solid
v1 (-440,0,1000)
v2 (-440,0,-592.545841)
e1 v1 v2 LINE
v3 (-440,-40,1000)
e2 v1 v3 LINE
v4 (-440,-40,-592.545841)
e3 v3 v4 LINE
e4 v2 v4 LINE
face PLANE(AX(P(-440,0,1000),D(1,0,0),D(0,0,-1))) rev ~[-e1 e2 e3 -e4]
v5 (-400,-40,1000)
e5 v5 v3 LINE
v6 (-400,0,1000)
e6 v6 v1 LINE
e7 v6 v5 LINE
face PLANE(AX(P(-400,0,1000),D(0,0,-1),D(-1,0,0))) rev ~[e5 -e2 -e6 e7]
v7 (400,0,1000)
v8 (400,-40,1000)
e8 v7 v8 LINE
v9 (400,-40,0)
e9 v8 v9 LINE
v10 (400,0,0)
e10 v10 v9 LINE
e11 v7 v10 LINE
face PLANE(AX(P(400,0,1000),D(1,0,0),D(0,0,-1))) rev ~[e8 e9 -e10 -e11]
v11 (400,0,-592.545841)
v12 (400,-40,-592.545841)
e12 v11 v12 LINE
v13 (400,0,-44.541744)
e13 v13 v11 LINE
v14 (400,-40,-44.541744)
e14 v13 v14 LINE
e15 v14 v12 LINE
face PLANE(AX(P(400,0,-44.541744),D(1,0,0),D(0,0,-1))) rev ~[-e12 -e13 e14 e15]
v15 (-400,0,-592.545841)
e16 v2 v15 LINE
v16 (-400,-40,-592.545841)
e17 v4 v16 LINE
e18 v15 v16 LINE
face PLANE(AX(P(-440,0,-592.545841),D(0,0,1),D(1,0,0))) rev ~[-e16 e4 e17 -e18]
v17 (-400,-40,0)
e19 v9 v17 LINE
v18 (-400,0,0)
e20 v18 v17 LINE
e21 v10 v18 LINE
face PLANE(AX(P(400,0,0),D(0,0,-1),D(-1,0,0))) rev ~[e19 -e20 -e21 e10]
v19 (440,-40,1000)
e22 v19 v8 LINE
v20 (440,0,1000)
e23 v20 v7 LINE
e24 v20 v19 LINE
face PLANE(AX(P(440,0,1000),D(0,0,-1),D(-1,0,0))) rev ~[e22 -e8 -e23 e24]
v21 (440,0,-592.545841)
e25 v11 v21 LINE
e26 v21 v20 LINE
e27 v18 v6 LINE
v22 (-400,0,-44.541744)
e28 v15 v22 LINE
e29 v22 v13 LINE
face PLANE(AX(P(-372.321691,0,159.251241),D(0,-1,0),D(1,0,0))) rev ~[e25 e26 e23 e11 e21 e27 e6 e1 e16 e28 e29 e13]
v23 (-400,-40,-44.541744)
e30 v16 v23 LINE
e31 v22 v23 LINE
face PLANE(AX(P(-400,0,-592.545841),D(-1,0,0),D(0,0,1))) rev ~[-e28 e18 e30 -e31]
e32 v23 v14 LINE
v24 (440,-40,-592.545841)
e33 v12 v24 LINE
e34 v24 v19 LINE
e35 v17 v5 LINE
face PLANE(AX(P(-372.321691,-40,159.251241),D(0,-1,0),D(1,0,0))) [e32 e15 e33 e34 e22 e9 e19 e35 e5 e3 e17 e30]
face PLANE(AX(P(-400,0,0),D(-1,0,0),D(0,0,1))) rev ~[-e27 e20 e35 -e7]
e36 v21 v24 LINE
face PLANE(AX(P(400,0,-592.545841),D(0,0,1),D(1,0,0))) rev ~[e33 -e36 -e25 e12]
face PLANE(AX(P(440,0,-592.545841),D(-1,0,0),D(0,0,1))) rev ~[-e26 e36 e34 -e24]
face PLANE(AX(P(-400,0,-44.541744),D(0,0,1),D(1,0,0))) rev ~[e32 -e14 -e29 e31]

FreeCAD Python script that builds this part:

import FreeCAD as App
import Part
import Sketcher
from FreeCAD import Vector
Q = App.Units.Quantity

doc = App.newDocument("Part")
params = doc.addObject("Spreadsheet::Sheet", "Params")
for row, (alias, value) in enumerate([
    ("sketch1_width", "40 mm"),
    ("sketch1_width2", "800 mm"),
    ("sketch1_height", "1000 mm"),
    ("pad1_length", "40 mm"),
], start=1):
    params.set(f"A{row}", alias)
    params.set(f"B{row}", "=" + value)
    params.setAlias(f"B{row}", alias)

body = doc.addObject("PartDesign::Body", "Body")

# Sketch on XZ plane
sketch1 = body.newObject("Sketcher::SketchObject", "Sketch")
sketch1.AttachmentSupport = (doc.getObject("XZ_Plane"), [""])
sketch1.MapMode = "FlatFace"
sketch1.addGeometry(Part.LineSegment(Vector(-400, 0, 0), Vector(-400, 1000, 0)), False)
sketch1.addGeometry(Part.LineSegment(Vector(-400, 1000, 0), Vector(-440, 1000, 0)), False)
sketch1.addGeometry(Part.LineSegment(Vector(-440, 1000, 0), Vector(-440, -592.545841, 0)), False)
sketch1.addGeometry(Part.LineSegment(Vector(-440, -592.545841, 0), Vector(-400, -592.545841, 0)), False)
sketch1.addGeometry(Part.LineSegment(Vector(-400, -592.545841, 0), Vector(-400, -44.541744, 0)), False)
sketch1.addGeometry(Part.LineSegment(Vector(-400, -44.541744, 0), Vector(400, -44.541744, 0)), False)
sketch1.addGeometry(Part.LineSegment(Vector(400, -44.541744, 0), Vector(400, -592.545841, 0)), False)
sketch1.addGeometry(Part.LineSegment(Vector(400, -592.545841, 0), Vector(440, -592.545841, 0)), False)
sketch1.addGeometry(Part.LineSegment(Vector(440, -592.545841, 0), Vector(440, 1000, 0)), False)
sketch1.addGeometry(Part.LineSegment(Vector(440, 1000, 0), Vector(400, 1000, 0)), False)
sketch1.addGeometry(Part.LineSegment(Vector(400, 1000, 0), Vector(400, 0, 0)), False)
sketch1.addGeometry(Part.LineSegment(Vector(400, 0, 0), Vector(-400, 0, 0)), False)
sketch1.addConstraint(Sketcher.Constraint("Coincident", 0, 2, 1, 1))
sketch1.addConstraint(Sketcher.Constraint("Coincident", 1, 2, 2, 1))
sketch1.addConstraint(Sketcher.Constraint("Coincident", 2, 2, 3, 1))
sketch1.addConstraint(Sketcher.Constraint("Coincident", 3, 2, 4, 1))
sketch1.addConstraint(Sketcher.Constraint("Coincident", 4, 2, 5, 1))
sketch1.addConstraint(Sketcher.Constraint("Coincident", 5, 2, 6, 1))
sketch1.addConstraint(Sketcher.Constraint("Coincident", 6, 2, 7, 1))
sketch1.addConstraint(Sketcher.Constraint("Coincident", 7, 2, 8, 1))
sketch1.addConstraint(Sketcher.Constraint("Coincident", 8, 2, 9, 1))
sketch1.addConstraint(Sketcher.Constraint("Coincident", 9, 2, 10, 1))
sketch1.addConstraint(Sketcher.Constraint("Coincident", 10, 2, 11, 1))
sketch1.addConstraint(Sketcher.Constraint("Coincident", 11, 2, 0, 1))
sketch1.addConstraint(Sketcher.Constraint("Vertical", 0))
sketch1.addConstraint(Sketcher.Constraint("Horizontal", 1))
sketch1.addConstraint(Sketcher.Constraint("Vertical", 2))
sketch1.addConstraint(Sketcher.Constraint("Horizontal", 3))
sketch1.addConstraint(Sketcher.Constraint("Vertical", 4))
sketch1.addConstraint(Sketcher.Constraint("Horizontal", 5))
sketch1.addConstraint(Sketcher.Constraint("Vertical", 6))
sketch1.addConstraint(Sketcher.Constraint("Horizontal", 7))
sketch1.addConstraint(Sketcher.Constraint("Vertical", 8))
sketch1.addConstraint(Sketcher.Constraint("Horizontal", 9))
sketch1.addConstraint(Sketcher.Constraint("Vertical", 10))
sketch1.addConstraint(Sketcher.Constraint("Horizontal", 11))
sketch1.addConstraint(Sketcher.Constraint("Symmetric", 10, 2, 11, 2, -1, 1))
sketch1.addConstraint(Sketcher.Constraint("Symmetric", 3, 2, 6, 2, -2))
sketch1.addConstraint(Sketcher.Constraint("Symmetric", 1, 2, 8, 2, -2))
sketch1.addConstraint(Sketcher.Constraint("Vertical", 0, 2, 3, 2))
sketch1.addConstraint(Sketcher.Constraint("DistanceX", 1, 2, 1, 1, Q("40 mm")))
sketch1.addConstraint(Sketcher.Constraint("DistanceX", 5, 1, 5, 2, Q("800 mm")))
sketch1.addConstraint(Sketcher.Constraint("DistanceY", 0, 1, 0, 2, Q("1000 mm")))
sketch1.addConstraint(Sketcher.Constraint("DistanceY", 2, 2, 2, 1, Q("1592.545841 mm")))
sketch1.addConstraint(Sketcher.Constraint("DistanceY", 4, 1, 4, 2, Q("548.004097 mm")))
sketch1.setExpression("Constraints[28]", "Params.sketch1_width")
sketch1.setExpression("Constraints[29]", "Params.sketch1_width2")
sketch1.setExpression("Constraints[30]", "Params.sketch1_height")
pad1 = body.newObject("PartDesign::Pad", "Pad")
pad1.Profile = sketch1
pad1.setExpression("Length", "Params.pad1_length")

doc.recompute()
